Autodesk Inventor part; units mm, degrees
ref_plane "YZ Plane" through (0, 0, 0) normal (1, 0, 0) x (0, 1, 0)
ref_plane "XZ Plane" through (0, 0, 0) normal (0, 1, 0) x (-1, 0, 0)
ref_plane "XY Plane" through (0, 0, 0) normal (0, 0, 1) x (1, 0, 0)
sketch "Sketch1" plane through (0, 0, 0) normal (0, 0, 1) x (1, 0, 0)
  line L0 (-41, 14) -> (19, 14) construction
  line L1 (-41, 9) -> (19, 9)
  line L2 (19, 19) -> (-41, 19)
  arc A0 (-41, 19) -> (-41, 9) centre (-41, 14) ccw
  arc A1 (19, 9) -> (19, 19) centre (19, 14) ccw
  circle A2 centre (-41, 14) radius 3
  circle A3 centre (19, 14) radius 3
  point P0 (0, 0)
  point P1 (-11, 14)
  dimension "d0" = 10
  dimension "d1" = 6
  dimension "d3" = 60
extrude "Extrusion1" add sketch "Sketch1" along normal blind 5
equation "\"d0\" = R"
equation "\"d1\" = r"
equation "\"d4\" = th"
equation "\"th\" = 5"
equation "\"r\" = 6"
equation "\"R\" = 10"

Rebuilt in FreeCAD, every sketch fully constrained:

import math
import FreeCAD as App
import Part
import Sketcher
Q = App.Units.Quantity

doc = App.newDocument("Part")
params = doc.addObject("Spreadsheet::Sheet", "Params")
for row, (alias, value) in enumerate([
    ("sketch1_diameter", "6 mm"),
    ("sketch1_radius", "5 mm"),
    ("sketch1_width", "60 mm"),
    ("pad1_length", "5 mm"),
], start=1):
    params.set(f"A{row}", alias)
    params.set(f"B{row}", "=" + value)
    params.setAlias(f"B{row}", alias)

body = doc.addObject("PartDesign::Body", "Body")

# Sketch on XY plane
sketch1 = body.newObject("Sketcher::SketchObject", "Sketch")
sketch1.AttachmentSupport = (doc.getObject("XY_Plane"), [""])
sketch1.MapMode = "FlatFace"
sketch1.addGeometry(Part.ArcOfCircle(Part.Circle(App.Vector(-41, 14, 0), App.Vector(0, 0, 1), 5), math.radians(90), math.radians(270)), False)
sketch1.addGeometry(Part.LineSegment(App.Vector(-41, 9, 0), App.Vector(19, 9, 0)), False)
sketch1.addGeometry(Part.ArcOfCircle(Part.Circle(App.Vector(19, 14, 0), App.Vector(0, 0, 1), 5), math.radians(-90), math.radians(90)), False)
sketch1.addGeometry(Part.LineSegment(App.Vector(19, 19, 0), App.Vector(-41, 19, 0)), False)
sketch1.addGeometry(Part.Circle(App.Vector(-41, 14, 0), App.Vector(0, 0, 1), 3), False)
sketch1.addGeometry(Part.Circle(App.Vector(19, 14, 0), App.Vector(0, 0, 1), 3), False)
sketch1.addConstraint(Sketcher.Constraint("Tangent", 0, 2, 1, 1))
sketch1.addConstraint(Sketcher.Constraint("Tangent", 1, 2, 2, 1))
sketch1.addConstraint(Sketcher.Constraint("Tangent", 2, 2, 3, 1))
sketch1.addConstraint(Sketcher.Constraint("Tangent", 3, 2, 0, 1))
sketch1.addConstraint(Sketcher.Constraint("Horizontal", 1))
sketch1.addConstraint(Sketcher.Constraint("Horizontal", 3))
sketch1.addConstraint(Sketcher.Constraint("Coincident", 4, 3, 0, 3))
sketch1.addConstraint(Sketcher.Constraint("Coincident", 5, 3, 2, 3))
sketch1.addConstraint(Sketcher.Constraint("Equal", 4, 5))
sketch1.addConstraint(Sketcher.Constraint("Diameter", 4, Q("6 mm")))
sketch1.addConstraint(Sketcher.Constraint("Radius", 0, Q("5 mm")))
sketch1.addConstraint(Sketcher.Constraint("DistanceX", 1, 1, 1, 2, Q("60 mm")))
sketch1.addConstraint(Sketcher.Constraint("DistanceX", 0, 3, -1, 1, Q("41 mm")))
sketch1.addConstraint(Sketcher.Constraint("DistanceY", -1, 1, 0, 3, Q("14 mm")))
sketch1.setExpression("Constraints[9]", "Params.sketch1_diameter")
sketch1.setExpression("Constraints[10]", "Params.sketch1_radius")
sketch1.setExpression("Constraints[11]", "Params.sketch1_width")
pad1 = body.newObject("PartDesign::Pad", "Pad")
pad1.Profile = sketch1
pad1.setExpression("Length", "Params.pad1_length")

doc.recompute()
